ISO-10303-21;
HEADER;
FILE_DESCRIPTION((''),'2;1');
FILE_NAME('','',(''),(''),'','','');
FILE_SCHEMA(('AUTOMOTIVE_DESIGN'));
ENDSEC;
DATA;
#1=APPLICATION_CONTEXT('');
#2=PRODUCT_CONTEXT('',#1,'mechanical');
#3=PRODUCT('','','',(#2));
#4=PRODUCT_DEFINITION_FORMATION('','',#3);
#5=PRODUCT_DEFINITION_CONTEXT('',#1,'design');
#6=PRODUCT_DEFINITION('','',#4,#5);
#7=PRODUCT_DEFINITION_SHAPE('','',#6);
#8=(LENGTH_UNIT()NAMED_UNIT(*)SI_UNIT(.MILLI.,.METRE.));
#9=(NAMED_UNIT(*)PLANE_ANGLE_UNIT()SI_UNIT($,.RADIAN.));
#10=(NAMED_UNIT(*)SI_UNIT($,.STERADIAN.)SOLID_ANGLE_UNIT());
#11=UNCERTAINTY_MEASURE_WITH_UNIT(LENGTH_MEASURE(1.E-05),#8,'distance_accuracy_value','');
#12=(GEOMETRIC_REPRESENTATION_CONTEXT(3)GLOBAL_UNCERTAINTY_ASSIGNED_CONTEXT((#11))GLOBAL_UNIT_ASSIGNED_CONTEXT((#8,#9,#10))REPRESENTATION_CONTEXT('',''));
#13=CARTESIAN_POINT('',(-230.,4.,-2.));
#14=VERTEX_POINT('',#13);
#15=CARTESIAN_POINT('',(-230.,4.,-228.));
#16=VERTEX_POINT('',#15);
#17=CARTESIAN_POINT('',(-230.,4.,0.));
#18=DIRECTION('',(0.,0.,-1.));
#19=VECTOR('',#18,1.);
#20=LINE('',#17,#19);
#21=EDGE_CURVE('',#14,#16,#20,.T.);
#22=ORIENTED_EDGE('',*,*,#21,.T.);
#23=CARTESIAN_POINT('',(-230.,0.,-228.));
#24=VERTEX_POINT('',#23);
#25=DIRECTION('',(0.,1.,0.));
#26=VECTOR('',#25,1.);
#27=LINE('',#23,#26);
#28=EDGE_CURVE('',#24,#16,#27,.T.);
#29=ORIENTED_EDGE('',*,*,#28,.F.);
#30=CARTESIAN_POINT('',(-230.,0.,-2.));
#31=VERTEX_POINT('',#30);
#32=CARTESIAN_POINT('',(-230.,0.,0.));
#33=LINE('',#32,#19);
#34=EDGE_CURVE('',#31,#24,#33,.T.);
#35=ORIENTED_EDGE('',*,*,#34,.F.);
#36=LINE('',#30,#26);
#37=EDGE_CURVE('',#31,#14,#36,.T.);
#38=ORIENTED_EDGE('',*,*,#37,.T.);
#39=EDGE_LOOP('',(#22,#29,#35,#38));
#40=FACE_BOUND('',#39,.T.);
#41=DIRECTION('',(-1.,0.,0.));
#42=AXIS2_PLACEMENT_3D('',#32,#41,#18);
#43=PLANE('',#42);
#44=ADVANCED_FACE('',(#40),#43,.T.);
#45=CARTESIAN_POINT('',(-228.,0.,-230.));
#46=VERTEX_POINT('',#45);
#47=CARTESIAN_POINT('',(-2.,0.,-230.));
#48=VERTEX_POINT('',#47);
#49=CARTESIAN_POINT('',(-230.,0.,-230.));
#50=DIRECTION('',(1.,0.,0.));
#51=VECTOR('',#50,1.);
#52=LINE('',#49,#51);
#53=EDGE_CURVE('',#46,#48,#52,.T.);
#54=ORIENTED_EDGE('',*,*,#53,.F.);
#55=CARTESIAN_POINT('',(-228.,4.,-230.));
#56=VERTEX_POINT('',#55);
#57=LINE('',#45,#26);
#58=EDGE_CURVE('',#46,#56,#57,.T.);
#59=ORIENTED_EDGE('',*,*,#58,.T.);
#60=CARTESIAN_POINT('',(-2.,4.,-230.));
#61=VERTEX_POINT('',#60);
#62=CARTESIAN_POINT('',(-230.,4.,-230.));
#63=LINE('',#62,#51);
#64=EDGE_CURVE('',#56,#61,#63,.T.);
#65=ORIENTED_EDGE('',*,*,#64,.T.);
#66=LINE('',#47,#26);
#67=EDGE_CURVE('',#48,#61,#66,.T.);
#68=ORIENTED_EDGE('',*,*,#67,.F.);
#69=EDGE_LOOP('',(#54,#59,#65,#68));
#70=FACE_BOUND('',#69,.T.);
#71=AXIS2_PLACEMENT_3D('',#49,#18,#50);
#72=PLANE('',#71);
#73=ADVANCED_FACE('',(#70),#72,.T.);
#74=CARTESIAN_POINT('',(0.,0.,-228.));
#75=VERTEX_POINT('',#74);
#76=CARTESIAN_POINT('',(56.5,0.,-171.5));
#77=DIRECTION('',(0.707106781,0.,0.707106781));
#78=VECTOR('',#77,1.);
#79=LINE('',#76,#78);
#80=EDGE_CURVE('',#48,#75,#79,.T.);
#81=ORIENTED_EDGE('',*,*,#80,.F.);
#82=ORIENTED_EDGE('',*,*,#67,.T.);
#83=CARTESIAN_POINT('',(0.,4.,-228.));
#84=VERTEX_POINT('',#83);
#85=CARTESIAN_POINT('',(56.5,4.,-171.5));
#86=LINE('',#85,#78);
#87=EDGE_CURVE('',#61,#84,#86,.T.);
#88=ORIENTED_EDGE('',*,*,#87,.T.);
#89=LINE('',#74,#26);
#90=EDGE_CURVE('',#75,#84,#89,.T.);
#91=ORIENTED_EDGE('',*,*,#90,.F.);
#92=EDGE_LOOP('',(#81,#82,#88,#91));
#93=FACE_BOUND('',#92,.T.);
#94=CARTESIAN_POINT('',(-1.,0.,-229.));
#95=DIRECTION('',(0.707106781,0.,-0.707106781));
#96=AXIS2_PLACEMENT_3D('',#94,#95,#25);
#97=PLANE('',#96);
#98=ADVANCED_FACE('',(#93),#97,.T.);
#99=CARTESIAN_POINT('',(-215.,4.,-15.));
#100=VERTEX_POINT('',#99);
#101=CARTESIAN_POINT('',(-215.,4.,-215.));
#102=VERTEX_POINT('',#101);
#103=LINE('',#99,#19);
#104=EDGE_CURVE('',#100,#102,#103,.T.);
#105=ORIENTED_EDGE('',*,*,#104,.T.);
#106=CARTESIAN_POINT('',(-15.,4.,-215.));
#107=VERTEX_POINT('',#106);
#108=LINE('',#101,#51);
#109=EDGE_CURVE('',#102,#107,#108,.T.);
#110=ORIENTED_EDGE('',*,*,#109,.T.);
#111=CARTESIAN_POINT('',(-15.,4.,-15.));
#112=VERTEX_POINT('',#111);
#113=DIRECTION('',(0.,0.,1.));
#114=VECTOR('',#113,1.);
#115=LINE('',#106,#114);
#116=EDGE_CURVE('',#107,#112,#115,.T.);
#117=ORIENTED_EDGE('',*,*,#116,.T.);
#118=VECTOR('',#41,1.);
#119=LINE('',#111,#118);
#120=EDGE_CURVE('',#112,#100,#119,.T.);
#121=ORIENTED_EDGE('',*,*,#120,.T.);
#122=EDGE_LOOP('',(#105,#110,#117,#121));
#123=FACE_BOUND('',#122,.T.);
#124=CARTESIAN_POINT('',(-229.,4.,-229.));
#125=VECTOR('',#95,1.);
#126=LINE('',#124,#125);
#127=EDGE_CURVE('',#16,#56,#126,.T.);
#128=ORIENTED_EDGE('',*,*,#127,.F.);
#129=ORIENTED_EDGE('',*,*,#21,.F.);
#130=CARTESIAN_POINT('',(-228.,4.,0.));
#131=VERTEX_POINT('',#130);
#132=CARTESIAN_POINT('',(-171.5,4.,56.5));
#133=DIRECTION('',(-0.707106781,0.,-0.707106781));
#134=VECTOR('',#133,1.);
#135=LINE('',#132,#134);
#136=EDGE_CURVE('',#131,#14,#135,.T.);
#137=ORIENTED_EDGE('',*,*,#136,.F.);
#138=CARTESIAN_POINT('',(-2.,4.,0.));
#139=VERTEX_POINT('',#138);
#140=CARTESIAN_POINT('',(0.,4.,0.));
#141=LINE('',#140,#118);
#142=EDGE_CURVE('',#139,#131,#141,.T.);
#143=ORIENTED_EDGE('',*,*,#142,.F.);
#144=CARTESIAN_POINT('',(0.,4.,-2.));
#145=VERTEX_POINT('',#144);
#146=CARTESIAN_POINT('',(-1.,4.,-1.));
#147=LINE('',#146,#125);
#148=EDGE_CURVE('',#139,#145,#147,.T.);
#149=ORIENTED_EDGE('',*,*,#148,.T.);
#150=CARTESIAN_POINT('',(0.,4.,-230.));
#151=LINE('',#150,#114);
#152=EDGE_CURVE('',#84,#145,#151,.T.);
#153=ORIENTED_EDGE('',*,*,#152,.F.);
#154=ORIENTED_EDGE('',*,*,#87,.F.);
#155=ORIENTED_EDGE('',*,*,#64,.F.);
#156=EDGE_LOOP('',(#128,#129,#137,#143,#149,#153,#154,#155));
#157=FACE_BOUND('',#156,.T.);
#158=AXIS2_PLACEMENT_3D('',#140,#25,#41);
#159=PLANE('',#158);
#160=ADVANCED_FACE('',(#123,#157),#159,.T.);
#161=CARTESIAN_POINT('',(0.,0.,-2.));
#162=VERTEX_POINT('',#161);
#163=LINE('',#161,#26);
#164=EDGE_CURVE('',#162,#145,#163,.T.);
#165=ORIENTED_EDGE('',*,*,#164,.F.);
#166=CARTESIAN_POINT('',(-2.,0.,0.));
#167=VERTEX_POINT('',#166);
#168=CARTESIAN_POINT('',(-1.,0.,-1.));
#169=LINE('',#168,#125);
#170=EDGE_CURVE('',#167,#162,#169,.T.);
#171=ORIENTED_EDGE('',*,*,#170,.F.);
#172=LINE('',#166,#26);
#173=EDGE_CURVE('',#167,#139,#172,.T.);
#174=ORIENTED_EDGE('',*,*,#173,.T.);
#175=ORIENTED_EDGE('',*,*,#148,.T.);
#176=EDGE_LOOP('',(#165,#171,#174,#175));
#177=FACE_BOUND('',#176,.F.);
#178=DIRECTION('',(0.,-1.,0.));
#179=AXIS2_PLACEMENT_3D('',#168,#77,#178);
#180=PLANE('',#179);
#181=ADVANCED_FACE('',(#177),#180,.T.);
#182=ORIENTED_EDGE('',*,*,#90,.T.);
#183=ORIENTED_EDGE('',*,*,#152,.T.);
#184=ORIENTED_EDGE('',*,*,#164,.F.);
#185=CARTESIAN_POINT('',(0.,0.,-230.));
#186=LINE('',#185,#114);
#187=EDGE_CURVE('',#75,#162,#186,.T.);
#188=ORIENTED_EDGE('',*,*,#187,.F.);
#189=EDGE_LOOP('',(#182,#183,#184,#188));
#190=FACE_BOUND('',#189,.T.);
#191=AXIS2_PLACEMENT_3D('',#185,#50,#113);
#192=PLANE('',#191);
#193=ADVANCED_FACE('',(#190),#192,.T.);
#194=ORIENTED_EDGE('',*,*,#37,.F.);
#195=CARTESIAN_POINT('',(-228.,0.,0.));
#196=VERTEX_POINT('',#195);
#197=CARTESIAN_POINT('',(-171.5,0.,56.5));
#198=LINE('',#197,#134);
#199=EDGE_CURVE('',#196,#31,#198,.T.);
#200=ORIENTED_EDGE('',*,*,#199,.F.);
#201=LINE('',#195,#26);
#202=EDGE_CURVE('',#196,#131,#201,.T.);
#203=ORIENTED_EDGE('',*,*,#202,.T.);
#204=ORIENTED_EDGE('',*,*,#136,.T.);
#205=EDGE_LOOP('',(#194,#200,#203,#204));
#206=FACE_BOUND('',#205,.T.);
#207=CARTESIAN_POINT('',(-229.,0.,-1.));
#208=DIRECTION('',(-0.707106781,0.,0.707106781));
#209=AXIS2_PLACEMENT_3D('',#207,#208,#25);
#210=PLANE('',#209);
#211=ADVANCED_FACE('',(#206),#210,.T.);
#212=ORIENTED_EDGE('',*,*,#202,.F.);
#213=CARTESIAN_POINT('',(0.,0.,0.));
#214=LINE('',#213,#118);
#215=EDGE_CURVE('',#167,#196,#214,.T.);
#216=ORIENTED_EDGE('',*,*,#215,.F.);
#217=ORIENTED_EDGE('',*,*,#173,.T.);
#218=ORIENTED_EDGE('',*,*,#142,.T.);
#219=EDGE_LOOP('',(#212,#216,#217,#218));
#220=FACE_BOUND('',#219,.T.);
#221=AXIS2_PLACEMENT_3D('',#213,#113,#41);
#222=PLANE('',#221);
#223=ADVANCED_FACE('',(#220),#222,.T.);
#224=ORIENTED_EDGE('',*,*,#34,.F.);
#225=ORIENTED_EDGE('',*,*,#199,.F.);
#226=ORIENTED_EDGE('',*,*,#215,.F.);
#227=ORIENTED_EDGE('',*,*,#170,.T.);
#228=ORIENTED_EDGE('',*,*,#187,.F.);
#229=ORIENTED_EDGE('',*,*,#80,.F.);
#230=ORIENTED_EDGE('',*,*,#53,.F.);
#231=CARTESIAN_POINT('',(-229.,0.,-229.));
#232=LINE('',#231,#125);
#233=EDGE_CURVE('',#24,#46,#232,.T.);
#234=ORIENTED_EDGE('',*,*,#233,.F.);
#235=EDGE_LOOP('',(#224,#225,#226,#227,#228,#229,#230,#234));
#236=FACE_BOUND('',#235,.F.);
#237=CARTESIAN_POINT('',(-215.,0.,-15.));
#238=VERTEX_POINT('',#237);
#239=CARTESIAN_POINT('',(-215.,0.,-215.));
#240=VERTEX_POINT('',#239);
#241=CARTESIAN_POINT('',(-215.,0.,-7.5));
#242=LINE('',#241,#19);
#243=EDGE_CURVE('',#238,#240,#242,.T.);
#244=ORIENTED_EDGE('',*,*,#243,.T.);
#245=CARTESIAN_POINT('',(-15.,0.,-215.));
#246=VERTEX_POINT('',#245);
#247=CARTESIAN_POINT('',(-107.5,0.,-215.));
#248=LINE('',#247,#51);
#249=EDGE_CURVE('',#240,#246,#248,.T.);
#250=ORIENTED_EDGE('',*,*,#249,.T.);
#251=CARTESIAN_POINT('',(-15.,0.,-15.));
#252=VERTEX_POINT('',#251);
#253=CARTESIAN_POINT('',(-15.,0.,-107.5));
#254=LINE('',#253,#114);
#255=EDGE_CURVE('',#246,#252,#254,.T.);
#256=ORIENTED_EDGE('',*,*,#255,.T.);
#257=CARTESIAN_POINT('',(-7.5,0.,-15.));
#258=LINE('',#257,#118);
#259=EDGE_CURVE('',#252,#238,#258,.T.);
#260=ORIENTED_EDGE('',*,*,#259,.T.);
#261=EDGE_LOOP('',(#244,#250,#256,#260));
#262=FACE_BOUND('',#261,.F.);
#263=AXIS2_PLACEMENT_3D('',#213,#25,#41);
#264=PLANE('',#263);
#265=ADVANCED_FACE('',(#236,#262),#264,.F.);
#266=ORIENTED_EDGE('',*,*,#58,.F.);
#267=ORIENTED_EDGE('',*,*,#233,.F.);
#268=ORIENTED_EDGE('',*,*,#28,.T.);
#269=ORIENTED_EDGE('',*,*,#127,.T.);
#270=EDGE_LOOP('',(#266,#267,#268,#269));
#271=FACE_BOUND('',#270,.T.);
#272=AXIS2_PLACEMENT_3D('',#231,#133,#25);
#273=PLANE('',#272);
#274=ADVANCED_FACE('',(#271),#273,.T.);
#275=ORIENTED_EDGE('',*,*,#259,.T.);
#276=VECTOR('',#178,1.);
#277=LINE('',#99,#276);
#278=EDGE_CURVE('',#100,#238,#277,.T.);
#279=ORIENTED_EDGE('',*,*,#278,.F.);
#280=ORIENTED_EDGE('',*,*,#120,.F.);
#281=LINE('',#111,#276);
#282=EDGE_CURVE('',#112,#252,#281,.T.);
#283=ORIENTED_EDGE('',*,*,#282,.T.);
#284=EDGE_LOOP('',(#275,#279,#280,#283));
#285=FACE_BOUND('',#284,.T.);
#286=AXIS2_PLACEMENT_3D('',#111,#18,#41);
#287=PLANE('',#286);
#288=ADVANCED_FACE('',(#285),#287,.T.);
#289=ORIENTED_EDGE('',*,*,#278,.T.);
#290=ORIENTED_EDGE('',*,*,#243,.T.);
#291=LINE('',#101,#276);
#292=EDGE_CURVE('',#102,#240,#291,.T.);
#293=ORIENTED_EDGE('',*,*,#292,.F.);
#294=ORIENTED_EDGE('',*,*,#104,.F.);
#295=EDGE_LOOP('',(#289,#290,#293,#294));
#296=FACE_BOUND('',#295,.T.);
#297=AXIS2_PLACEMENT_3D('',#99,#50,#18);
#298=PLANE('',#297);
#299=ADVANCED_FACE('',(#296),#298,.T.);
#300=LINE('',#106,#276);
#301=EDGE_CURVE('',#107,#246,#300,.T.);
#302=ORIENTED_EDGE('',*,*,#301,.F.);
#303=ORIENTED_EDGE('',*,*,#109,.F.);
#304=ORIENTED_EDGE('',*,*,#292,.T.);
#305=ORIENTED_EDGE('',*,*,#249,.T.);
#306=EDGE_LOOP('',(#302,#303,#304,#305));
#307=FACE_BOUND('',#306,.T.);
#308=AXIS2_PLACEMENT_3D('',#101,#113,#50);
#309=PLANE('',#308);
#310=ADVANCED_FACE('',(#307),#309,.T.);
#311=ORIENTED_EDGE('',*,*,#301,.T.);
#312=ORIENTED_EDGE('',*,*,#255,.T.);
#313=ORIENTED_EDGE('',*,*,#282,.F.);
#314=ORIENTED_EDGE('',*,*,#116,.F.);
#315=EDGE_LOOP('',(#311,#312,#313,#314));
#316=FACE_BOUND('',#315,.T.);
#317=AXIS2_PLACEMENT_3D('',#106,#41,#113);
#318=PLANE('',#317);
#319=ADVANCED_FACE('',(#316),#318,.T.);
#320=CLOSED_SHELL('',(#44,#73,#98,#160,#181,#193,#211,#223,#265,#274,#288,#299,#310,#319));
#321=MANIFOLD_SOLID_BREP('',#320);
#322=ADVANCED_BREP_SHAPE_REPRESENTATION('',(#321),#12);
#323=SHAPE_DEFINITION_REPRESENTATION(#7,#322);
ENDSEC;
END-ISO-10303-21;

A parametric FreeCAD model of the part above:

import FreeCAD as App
import Part
import Sketcher
Q = App.Units.Quantity


def edges_at(feature, points):
    """Names of the edges that pass closest to the given points."""
    edges = feature.Shape.Edges
    near = lambda p: min(range(len(edges)), key=lambda i: edges[i].distToShape(Part.Vertex(*p))[0])
    return sorted({f"Edge{near(p) + 1}" for p in points})


def add_polygon(sketch, points):
    """Adds a closed chain of lines whose ends are joined by coincident constraints."""
    first, n = sketch.GeometryCount, len(points)
    for a, b in zip(points, points[1:] + points[:1]):
        sketch.addGeometry(Part.LineSegment(App.Vector(*a, 0), App.Vector(*b, 0)), False)
    for i in range(n):
        sketch.addConstraint(Sketcher.Constraint("Coincident", first + i, 2, first + (i + 1) % n, 1))

doc = App.newDocument("Part")
body = doc.addObject("PartDesign::Body", "Body")

sketch1 = doc.addObject("Sketcher::SketchObject", "Sketch")
body.addObject(sketch1)
sketch1.AttachmentSupport = (doc.XZ_Plane, [""])
sketch1.MapMode = "FlatFace"
add_polygon(sketch1, [(-230, 0), (0, 0), (0, -230), (-230, -230)])
sketch1.addConstraint(Sketcher.Constraint("Horizontal", 0))
sketch1.addConstraint(Sketcher.Constraint("Vertical", 1))
sketch1.addConstraint(Sketcher.Constraint("Horizontal", 2))
sketch1.addConstraint(Sketcher.Constraint("Vertical", 3))
sketch1.addConstraint(Sketcher.Constraint("Coincident", 0, 2, -1, 1))
sketch1.addConstraint(Sketcher.Constraint("Equal", 2, 1))
sketch1.addConstraint(Sketcher.Constraint("DistanceX", 0, 1, 0, 2, Q("230 mm")))
pad1 = doc.addObject("PartDesign::Pad", "Pad")
body.addObject(pad1)
pad1.Profile = sketch1
pad1.Length = 4
pad1.Reversed = True
doc.recompute()

chamfer = doc.addObject("PartDesign::Chamfer", "Chamfer")
body.addObject(chamfer)
chamfer.Base = (pad1, edges_at(pad1, [
    (-230, 2, 0),
    (-230, 2, -230),
    (0, 2, -230),
    (0, 2, 0),
]))
chamfer.Size = 2

sketch2 = doc.addObject("Sketcher::SketchObject", "Sketch001")
body.addObject(sketch2)
sketch2.AttachmentSupport = (doc.XZ_Plane, [""])
sketch2.MapMode = "FlatFace"
sketch2.AttachmentOffset = App.Placement(App.Vector(0, 0, -4), App.Rotation())
add_polygon(sketch2, [(-15, -215), (-215, -215), (-215, -15), (-15, -15)])
sketch2.addConstraint(Sketcher.Constraint("Horizontal", 0))
sketch2.addConstraint(Sketcher.Constraint("Vertical", 1))
sketch2.addConstraint(Sketcher.Constraint("Horizontal", 2))
sketch2.addConstraint(Sketcher.Constraint("Vertical", 3))
sketch2.addConstraint(Sketcher.Constraint("Equal", 2, 1))
sketch2.addConstraint(Sketcher.Constraint("DistanceX", 0, 2, 0, 1, Q("200 mm")))
sketch2.addConstraint(Sketcher.Constraint("DistanceY", 1, 2, -1, 1, Q("15 mm")))
sketch2.addConstraint(Sketcher.Constraint("DistanceX", 2, 2, -1, 1, Q("15 mm")))
pocket1 = doc.addObject("PartDesign::Pocket", "Pocket")
body.addObject(pocket1)
pocket1.Profile = sketch2
pocket1.Type = "ThroughAll"
pocket1.Reversed = True

doc.recompute()
